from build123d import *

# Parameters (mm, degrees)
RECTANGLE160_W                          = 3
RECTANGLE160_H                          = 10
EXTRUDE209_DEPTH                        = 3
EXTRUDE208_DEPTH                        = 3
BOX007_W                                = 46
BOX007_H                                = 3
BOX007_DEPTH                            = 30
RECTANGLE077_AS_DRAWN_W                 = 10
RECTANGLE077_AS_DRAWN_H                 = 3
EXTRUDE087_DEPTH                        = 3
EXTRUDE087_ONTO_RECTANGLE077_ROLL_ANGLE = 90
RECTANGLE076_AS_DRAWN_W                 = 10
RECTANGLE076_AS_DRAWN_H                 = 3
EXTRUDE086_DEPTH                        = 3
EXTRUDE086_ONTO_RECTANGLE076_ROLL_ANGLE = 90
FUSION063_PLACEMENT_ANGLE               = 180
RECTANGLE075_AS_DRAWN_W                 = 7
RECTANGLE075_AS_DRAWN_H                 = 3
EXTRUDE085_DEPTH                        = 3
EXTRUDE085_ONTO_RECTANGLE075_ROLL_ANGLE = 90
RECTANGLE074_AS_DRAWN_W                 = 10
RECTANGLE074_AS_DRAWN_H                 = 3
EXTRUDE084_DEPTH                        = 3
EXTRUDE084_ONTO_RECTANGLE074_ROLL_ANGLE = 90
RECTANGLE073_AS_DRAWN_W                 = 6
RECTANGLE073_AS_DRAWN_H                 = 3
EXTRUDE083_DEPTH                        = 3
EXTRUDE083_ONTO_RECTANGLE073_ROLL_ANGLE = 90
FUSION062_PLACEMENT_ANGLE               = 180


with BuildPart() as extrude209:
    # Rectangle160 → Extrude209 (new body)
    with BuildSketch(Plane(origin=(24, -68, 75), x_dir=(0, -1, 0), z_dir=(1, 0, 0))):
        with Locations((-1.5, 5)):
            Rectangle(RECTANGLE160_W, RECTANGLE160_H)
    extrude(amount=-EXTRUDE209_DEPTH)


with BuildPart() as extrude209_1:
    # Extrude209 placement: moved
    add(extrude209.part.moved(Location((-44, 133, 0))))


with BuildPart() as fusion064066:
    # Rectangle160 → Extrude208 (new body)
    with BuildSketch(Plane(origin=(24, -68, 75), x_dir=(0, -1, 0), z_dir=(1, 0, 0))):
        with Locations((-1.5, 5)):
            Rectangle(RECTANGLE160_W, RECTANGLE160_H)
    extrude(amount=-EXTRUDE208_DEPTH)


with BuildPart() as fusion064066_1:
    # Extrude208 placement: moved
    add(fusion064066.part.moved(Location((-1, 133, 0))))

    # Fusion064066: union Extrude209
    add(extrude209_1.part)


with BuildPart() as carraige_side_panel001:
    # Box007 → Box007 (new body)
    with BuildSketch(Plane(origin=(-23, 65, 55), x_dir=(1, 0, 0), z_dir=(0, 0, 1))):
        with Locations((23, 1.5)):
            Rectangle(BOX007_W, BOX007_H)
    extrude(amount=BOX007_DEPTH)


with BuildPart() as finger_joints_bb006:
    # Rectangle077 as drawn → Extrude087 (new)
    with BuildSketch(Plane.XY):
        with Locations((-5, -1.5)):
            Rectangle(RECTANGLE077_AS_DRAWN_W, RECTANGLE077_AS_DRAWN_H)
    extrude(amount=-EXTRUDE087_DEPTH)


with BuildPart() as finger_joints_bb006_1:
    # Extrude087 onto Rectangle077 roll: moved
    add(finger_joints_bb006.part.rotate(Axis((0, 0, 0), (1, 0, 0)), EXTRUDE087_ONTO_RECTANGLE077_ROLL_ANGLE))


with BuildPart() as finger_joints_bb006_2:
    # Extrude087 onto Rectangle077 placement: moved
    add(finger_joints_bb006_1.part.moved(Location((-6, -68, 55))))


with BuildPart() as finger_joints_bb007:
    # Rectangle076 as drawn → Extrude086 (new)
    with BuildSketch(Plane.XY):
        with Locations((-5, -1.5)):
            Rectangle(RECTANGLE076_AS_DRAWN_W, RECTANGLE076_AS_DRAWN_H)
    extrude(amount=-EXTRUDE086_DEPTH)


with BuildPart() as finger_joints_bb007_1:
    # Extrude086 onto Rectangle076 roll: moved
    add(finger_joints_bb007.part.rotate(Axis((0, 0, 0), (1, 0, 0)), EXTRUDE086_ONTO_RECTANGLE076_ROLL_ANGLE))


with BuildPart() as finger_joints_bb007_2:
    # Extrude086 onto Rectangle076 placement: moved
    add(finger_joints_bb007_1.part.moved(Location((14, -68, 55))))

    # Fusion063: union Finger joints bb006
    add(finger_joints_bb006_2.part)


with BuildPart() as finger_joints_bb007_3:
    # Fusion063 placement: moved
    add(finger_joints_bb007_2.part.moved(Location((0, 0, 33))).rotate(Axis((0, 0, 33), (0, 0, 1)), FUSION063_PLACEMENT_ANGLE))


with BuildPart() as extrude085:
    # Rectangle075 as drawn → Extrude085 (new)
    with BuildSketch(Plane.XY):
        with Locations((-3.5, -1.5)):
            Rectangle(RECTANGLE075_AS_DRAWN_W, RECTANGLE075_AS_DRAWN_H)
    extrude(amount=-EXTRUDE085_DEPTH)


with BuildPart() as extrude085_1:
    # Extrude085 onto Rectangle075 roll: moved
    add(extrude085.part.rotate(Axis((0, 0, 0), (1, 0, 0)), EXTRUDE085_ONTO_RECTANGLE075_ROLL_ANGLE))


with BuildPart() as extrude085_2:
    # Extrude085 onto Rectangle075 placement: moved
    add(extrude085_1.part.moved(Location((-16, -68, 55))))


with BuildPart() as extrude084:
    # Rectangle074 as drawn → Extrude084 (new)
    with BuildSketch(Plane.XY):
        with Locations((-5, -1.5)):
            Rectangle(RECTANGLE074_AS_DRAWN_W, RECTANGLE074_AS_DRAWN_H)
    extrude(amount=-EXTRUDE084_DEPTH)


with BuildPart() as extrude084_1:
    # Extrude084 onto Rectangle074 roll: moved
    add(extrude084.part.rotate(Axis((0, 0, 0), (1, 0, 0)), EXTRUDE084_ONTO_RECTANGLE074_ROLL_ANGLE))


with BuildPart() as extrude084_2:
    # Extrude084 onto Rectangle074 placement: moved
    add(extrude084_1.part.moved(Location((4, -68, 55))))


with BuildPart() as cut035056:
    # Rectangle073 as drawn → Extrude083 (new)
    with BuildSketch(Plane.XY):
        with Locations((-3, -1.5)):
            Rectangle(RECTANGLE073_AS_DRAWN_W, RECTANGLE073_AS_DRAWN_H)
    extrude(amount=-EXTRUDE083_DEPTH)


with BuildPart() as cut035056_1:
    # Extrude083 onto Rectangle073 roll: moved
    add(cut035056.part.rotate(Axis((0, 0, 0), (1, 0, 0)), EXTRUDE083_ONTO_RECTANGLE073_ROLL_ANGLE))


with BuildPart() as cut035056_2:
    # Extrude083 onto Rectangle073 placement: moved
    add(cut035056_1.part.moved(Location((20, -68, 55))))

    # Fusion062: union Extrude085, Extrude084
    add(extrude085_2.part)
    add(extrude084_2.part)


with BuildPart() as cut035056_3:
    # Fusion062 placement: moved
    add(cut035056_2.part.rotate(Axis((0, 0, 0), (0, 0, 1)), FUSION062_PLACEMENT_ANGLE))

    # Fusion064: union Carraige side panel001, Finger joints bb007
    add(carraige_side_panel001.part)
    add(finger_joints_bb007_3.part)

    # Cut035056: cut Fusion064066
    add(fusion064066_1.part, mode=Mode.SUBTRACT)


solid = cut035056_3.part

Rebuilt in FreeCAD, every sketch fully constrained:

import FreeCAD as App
import Part
import Sketcher

V = App.Vector


def add_polygon(sketch, points):
    """Adds a closed chain of lines whose ends are joined by coincident constraints."""
    first, n = sketch.GeometryCount, len(points)
    for a, b in zip(points, points[1:] + points[:1]):
        sketch.addGeometry(Part.LineSegment(App.Vector(*a, 0), App.Vector(*b, 0)), False)
    for i in range(n):
        sketch.addConstraint(Sketcher.Constraint("Coincident", first + i, 2, first + (i + 1) % n, 1))

doc = App.newDocument("Part")
body = doc.addObject("PartDesign::Body", "Body")

# Sketch on YZ plane
sketch1 = body.newObject("Sketcher::SketchObject", "Sketch")
sketch1.AttachmentSupport = (doc.getObject("YZ_Plane"), [""])
sketch1.MapMode = "FlatFace"
sketch1.AttachmentOffset = App.Placement(V(0, 0, 24), App.Rotation())
add_polygon(sketch1, [(-65, 65), (-65, 75), (-68, 75), (-68, 65)])  # lines 0-3
sketch1.addConstraint([
    Sketcher.Constraint("Vertical", 0),
    Sketcher.Constraint("Horizontal", 1),
    Sketcher.Constraint("Vertical", 2),
    Sketcher.Constraint("Horizontal", 3),
    Sketcher.Constraint("DistanceX", 1, 2, 1, 1, 3.0),
    Sketcher.Constraint("DistanceY", 0, 1, 0, 2, 10.0),
    Sketcher.Constraint("DistanceX", 0, 2, -1, 1, 65.0),
    Sketcher.Constraint("DistanceY", -1, 1, 0, 2, 75.0),
])
pad1 = body.newObject("PartDesign::Pad", "Pad")
pad1.Profile = sketch1
pad1.Length = 3
pad1.Reversed = True
body2 = doc.addObject("PartDesign::Body", "Body001")
doc.recompute()

body.Placement = App.Placement(V(-44, 133, 0), App.Rotation(V(0, 0, 1), 0))
boolean = body2.newObject("PartDesign::Boolean", "Boolean")
boolean.Type = "Fuse"
boolean.addObjects([body])
body3 = doc.addObject("PartDesign::Body", "Body002")

# Sketch on YZ plane
sketch2 = body3.newObject("Sketcher::SketchObject", "Sketch001")
sketch2.AttachmentSupport = (doc.getObject("YZ_Plane002"), [""])
sketch2.MapMode = "FlatFace"
sketch2.AttachmentOffset = App.Placement(V(0, 0, 24), App.Rotation())
add_polygon(sketch2, [(-65, 65), (-65, 75), (-68, 75), (-68, 65)])  # lines 0-3
sketch2.addConstraint([
    Sketcher.Constraint("Vertical", 0),
    Sketcher.Constraint("Horizontal", 1),
    Sketcher.Constraint("Vertical", 2),
    Sketcher.Constraint("Horizontal", 3),
    Sketcher.Constraint("DistanceX", 1, 2, 1, 1, 3.0),
    Sketcher.Constraint("DistanceY", 0, 1, 0, 2, 10.0),
    Sketcher.Constraint("DistanceX", 0, 2, -1, 1, 65.0),
    Sketcher.Constraint("DistanceY", -1, 1, 0, 2, 75.0),
])
pad2 = body3.newObject("PartDesign::Pad", "Pad001")
pad2.Profile = sketch2
pad2.Length = 3
pad2.Reversed = True
body4 = doc.addObject("PartDesign::Body", "Body003")
body4.AllowCompound = True
doc.recompute()

body3.Placement = App.Placement(V(-1, 133, 0), App.Rotation(V(0, 0, 1), 0))
boolean2 = body4.newObject("PartDesign::Boolean", "Boolean001")
boolean2.Type = "Fuse"
boolean2.addObjects([body3])
doc.recompute()

boolean3 = body4.newObject("PartDesign::Boolean", "Boolean002")
boolean3.Type = "Fuse"
boolean3.addObjects([body2])
body5 = doc.addObject("PartDesign::Body", "Body004")

# Sketch on XY plane
sketch3 = body5.newObject("Sketcher::SketchObject", "Sketch002")
sketch3.AttachmentSupport = (doc.getObject("XY_Plane004"), [""])
sketch3.MapMode = "FlatFace"
sketch3.AttachmentOffset = App.Placement(V(0, 0, 55), App.Rotation())
add_polygon(sketch3, [(-23, 68), (-23, 65), (23, 65), (23, 68)])  # lines 0-3
sketch3.addConstraint([
    Sketcher.Constraint("Vertical", 0),
    Sketcher.Constraint("Horizontal", 1),
    Sketcher.Constraint("Vertical", 2),
    Sketcher.Constraint("Horizontal", 3),
    Sketcher.Constraint("DistanceX", 1, 1, 1, 2, 46.0),
    Sketcher.Constraint("DistanceY", 0, 2, 0, 1, 3.0),
    Sketcher.Constraint("DistanceX", 0, 2, -1, 1, 23.0),
    Sketcher.Constraint("DistanceY", -1, 1, 0, 2, 65.0),
])
pad3 = body5.newObject("PartDesign::Pad", "Pad002")
pad3.Profile = sketch3
pad3.Length = 30
body6 = doc.addObject("PartDesign::Body", "Body005")

# Sketch on XY plane
sketch4 = body6.newObject("Sketcher::SketchObject", "Sketch003")
sketch4.AttachmentSupport = (doc.getObject("XY_Plane005"), [""])
sketch4.MapMode = "FlatFace"
add_polygon(sketch4, [(-10, 0), (-10, -3), (0, -3), (0, 0)])  # lines 0-3
sketch4.addConstraint([
    Sketcher.Constraint("Vertical", 0),
    Sketcher.Constraint("Horizontal", 1),
    Sketcher.Constraint("Vertical", 2),
    Sketcher.Constraint("Horizontal", 3),
    Sketcher.Constraint("Coincident", 2, 2, -1, 1),
    Sketcher.Constraint("DistanceX", 1, 1, 1, 2, 10.0),
    Sketcher.Constraint("DistanceY", 0, 2, 0, 1, 3.0),
])
pad4 = body6.newObject("PartDesign::Pad", "Pad003")
pad4.Profile = sketch4
pad4.Length = 3
pad4.Reversed = True
body7 = doc.addObject("PartDesign::Body", "Body006")
doc.recompute()

body6.Placement = App.Placement(V(0, 0, 0), App.Rotation(V(1, 0, 0), 90))
boolean4 = body7.newObject("PartDesign::Boolean", "Boolean003")
boolean4.Type = "Fuse"
boolean4.addObjects([body6])
body8 = doc.addObject("PartDesign::Body", "Body007")
doc.recompute()

body7.Placement = App.Placement(V(-6, -68, 55), App.Rotation(V(0, 0, 1), 0))
boolean5 = body8.newObject("PartDesign::Boolean", "Boolean004")
boolean5.Type = "Fuse"
boolean5.addObjects([body7])
body9 = doc.addObject("PartDesign::Body", "Body008")

# Sketch on XY plane
sketch5 = body9.newObject("Sketcher::SketchObject", "Sketch004")
sketch5.AttachmentSupport = (doc.getObject("XY_Plane008"), [""])
sketch5.MapMode = "FlatFace"
add_polygon(sketch5, [(-10, 0), (-10, -3), (0, -3), (0, 0)])  # lines 0-3
sketch5.addConstraint([
    Sketcher.Constraint("Vertical", 0),
    Sketcher.Constraint("Horizontal", 1),
    Sketcher.Constraint("Vertical", 2),
    Sketcher.Constraint("Horizontal", 3),
    Sketcher.Constraint("Coincident", 2, 2, -1, 1),
    Sketcher.Constraint("DistanceX", 1, 1, 1, 2, 10.0),
    Sketcher.Constraint("DistanceY", 0, 2, 0, 1, 3.0),
])
pad5 = body9.newObject("PartDesign::Pad", "Pad004")
pad5.Profile = sketch5
pad5.Length = 3
pad5.Reversed = True
body10 = doc.addObject("PartDesign::Body", "Body009")
doc.recompute()

body9.Placement = App.Placement(V(0, 0, 0), App.Rotation(V(1, 0, 0), 90))
boolean6 = body10.newObject("PartDesign::Boolean", "Boolean005")
boolean6.Type = "Fuse"
boolean6.addObjects([body9])
body11 = doc.addObject("PartDesign::Body", "Body010")
body11.AllowCompound = True
doc.recompute()

body10.Placement = App.Placement(V(14, -68, 55), App.Rotation(V(0, 0, 1), 0))
boolean7 = body11.newObject("PartDesign::Boolean", "Boolean006")
boolean7.Type = "Fuse"
boolean7.addObjects([body10])
doc.recompute()

boolean8 = body11.newObject("PartDesign::Boolean", "Boolean007")
boolean8.Type = "Fuse"
boolean8.addObjects([body8])
body12 = doc.addObject("PartDesign::Body", "Body011")
body12.AllowCompound = True
doc.recompute()

body11.Placement = App.Placement(V(0, 0, 33), App.Rotation(V(0, 0, 1), 180))
boolean9 = body12.newObject("PartDesign::Boolean", "Boolean008")
boolean9.Type = "Fuse"
boolean9.addObjects([body11])
body13 = doc.addObject("PartDesign::Body", "Body012")

# Sketch on XY plane
sketch6 = body13.newObject("Sketcher::SketchObject", "Sketch005")
sketch6.AttachmentSupport = (doc.getObject("XY_Plane012"), [""])
sketch6.MapMode = "FlatFace"
add_polygon(sketch6, [(-7, 0), (-7, -3), (0, -3), (0, 0)])  # lines 0-3
sketch6.addConstraint([
    Sketcher.Constraint("Vertical", 0),
    Sketcher.Constraint("Horizontal", 1),
    Sketcher.Constraint("Vertical", 2),
    Sketcher.Constraint("Horizontal", 3),
    Sketcher.Constraint("Coincident", 2, 2, -1, 1),
    Sketcher.Constraint("DistanceX", 1, 1, 1, 2, 7.0),
    Sketcher.Constraint("DistanceY", 0, 2, 0, 1, 3.0),
])
pad6 = body13.newObject("PartDesign::Pad", "Pad005")
pad6.Profile = sketch6
pad6.Length = 3
pad6.Reversed = True
body14 = doc.addObject("PartDesign::Body", "Body013")
doc.recompute()

body13.Placement = App.Placement(V(0, 0, 0), App.Rotation(V(1, 0, 0), 90))
boolean10 = body14.newObject("PartDesign::Boolean", "Boolean009")
boolean10.Type = "Fuse"
boolean10.addObjects([body13])
body15 = doc.addObject("PartDesign::Body", "Body014")
doc.recompute()

body14.Placement = App.Placement(V(-16, -68, 55), App.Rotation(V(0, 0, 1), 0))
boolean11 = body15.newObject("PartDesign::Boolean", "Boolean010")
boolean11.Type = "Fuse"
boolean11.addObjects([body14])
body16 = doc.addObject("PartDesign::Body", "Body015")

# Sketch on XY plane
sketch7 = body16.newObject("Sketcher::SketchObject", "Sketch006")
sketch7.AttachmentSupport = (doc.getObject("XY_Plane015"), [""])
sketch7.MapMode = "FlatFace"
add_polygon(sketch7, [(-10, 0), (-10, -3), (0, -3), (0, 0)])  # lines 0-3
sketch7.addConstraint([
    Sketcher.Constraint("Vertical", 0),
    Sketcher.Constraint("Horizontal", 1),
    Sketcher.Constraint("Vertical", 2),
    Sketcher.Constraint("Horizontal", 3),
    Sketcher.Constraint("Coincident", 2, 2, -1, 1),
    Sketcher.Constraint("DistanceX", 1, 1, 1, 2, 10.0),
    Sketcher.Constraint("DistanceY", 0, 2, 0, 1, 3.0),
])
pad7 = body16.newObject("PartDesign::Pad", "Pad006")
pad7.Profile = sketch7
pad7.Length = 3
pad7.Reversed = True
body17 = doc.addObject("PartDesign::Body", "Body016")
doc.recompute()

body16.Placement = App.Placement(V(0, 0, 0), App.Rotation(V(1, 0, 0), 90))
boolean12 = body17.newObject("PartDesign::Boolean", "Boolean011")
boolean12.Type = "Fuse"
boolean12.addObjects([body16])
body18 = doc.addObject("PartDesign::Body", "Body017")
doc.recompute()

body17.Placement = App.Placement(V(4, -68, 55), App.Rotation(V(0, 0, 1), 0))
boolean13 = body18.newObject("PartDesign::Boolean", "Boolean012")
boolean13.Type = "Fuse"
boolean13.addObjects([body17])
body19 = doc.addObject("PartDesign::Body", "Body018")

# Sketch on XY plane
sketch8 = body19.newObject("Sketcher::SketchObject", "Sketch007")
sketch8.AttachmentSupport = (doc.getObject("XY_Plane018"), [""])
sketch8.MapMode = "FlatFace"
add_polygon(sketch8, [(-6, 0), (-6, -3), (0, -3), (0, 0)])  # lines 0-3
sketch8.addConstraint([
    Sketcher.Constraint("Vertical", 0),
    Sketcher.Constraint("Horizontal", 1),
    Sketcher.Constraint("Vertical", 2),
    Sketcher.Constraint("Horizontal", 3),
    Sketcher.Constraint("Coincident", 2, 2, -1, 1),
    Sketcher.Constraint("DistanceX", 1, 1, 1, 2, 6.0),
    Sketcher.Constraint("DistanceY", 0, 2, 0, 1, 3.0),
])
pad8 = body19.newObject("PartDesign::Pad", "Pad007")
pad8.Profile = sketch8
pad8.Length = 3
pad8.Reversed = True
body20 = doc.addObject("PartDesign::Body", "Body019")
doc.recompute()

body19.Placement = App.Placement(V(0, 0, 0), App.Rotation(V(1, 0, 0), 90))
boolean14 = body20.newObject("PartDesign::Boolean", "Boolean013")
boolean14.Type = "Fuse"
boolean14.addObjects([body19])
body21 = doc.addObject("PartDesign::Body", "Body020")
body21.AllowCompound = True
doc.recompute()

body20.Placement = App.Placement(V(20, -68, 55), App.Rotation(V(0, 0, 1), 0))
boolean15 = body21.newObject("PartDesign::Boolean", "Boolean014")
boolean15.Type = "Fuse"
boolean15.addObjects([body20])
doc.recompute()

boolean16 = body21.newObject("PartDesign::Boolean", "Boolean015")
boolean16.Type = "Fuse"
boolean16.addObjects([body15])
doc.recompute()

boolean17 = body21.newObject("PartDesign::Boolean", "Boolean016")
boolean17.Type = "Fuse"
boolean17.addObjects([body18])
body22 = doc.addObject("PartDesign::Body", "Body021")
body22.AllowCompound = True
doc.recompute()

body21.Placement = App.Placement(V(0, 0, 0), App.Rotation(V(0, 0, 1), 180))
boolean18 = body22.newObject("PartDesign::Boolean", "Boolean017")
boolean18.Type = "Fuse"
boolean18.addObjects([body21])
doc.recompute()

boolean19 = body22.newObject("PartDesign::Boolean", "Boolean018")
boolean19.Type = "Fuse"
boolean19.addObjects([body5])
doc.recompute()

boolean20 = body22.newObject("PartDesign::Boolean", "Boolean019")
boolean20.Type = "Fuse"
boolean20.addObjects([body12])
doc.recompute()

boolean21 = body22.newObject("PartDesign::Boolean", "Boolean020")
boolean21.Type = "Cut"
boolean21.addObjects([body4])

doc.recompute()
